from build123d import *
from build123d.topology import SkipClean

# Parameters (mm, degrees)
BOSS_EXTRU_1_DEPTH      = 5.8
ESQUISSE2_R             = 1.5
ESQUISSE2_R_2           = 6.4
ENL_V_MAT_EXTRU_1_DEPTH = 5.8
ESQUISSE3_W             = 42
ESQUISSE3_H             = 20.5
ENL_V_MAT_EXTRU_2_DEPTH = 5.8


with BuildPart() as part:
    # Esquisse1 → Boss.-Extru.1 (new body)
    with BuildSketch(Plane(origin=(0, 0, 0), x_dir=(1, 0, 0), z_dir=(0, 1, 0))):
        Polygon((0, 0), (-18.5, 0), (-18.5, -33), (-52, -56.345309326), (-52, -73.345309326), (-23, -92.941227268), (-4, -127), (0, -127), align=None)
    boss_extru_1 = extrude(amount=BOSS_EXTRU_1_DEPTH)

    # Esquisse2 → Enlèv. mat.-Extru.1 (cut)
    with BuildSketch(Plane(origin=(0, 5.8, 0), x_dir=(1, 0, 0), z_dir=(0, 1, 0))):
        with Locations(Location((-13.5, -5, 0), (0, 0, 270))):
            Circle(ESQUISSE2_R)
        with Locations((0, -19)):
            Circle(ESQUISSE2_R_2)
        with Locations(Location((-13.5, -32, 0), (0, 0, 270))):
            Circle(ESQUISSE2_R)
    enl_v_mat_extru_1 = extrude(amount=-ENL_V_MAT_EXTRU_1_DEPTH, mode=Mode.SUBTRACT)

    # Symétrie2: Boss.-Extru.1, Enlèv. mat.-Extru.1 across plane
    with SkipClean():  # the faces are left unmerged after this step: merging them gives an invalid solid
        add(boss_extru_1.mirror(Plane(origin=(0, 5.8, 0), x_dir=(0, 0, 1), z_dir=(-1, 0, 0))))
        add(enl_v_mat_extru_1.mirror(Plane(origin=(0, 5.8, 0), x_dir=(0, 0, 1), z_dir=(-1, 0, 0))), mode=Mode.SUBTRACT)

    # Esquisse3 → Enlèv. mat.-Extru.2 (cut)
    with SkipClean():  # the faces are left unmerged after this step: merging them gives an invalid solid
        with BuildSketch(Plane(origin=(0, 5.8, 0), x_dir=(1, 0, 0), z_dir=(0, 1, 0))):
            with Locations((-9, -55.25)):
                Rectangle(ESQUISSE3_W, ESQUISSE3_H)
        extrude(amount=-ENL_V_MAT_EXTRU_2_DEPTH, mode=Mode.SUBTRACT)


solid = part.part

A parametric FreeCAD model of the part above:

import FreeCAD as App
import Part
import Sketcher
from FreeCAD import Vector
Q = App.Units.Quantity


def add_polygon(sketch, points):
    """Adds a closed chain of lines whose ends are joined by coincident constraints."""
    first, n = sketch.GeometryCount, len(points)
    for a, b in zip(points, points[1:] + points[:1]):
        sketch.addGeometry(Part.LineSegment(App.Vector(*a, 0), App.Vector(*b, 0)), False)
    for i in range(n):
        sketch.addConstraint(Sketcher.Constraint("Coincident", first + i, 2, first + (i + 1) % n, 1))

doc = App.newDocument("Part")
body = doc.addObject("PartDesign::Body", "Body")

sketch1 = doc.addObject("Sketcher::SketchObject", "Sketch")
body.addObject(sketch1)
sketch1.AttachmentSupport = (doc.XZ_Plane, [""])
sketch1.MapMode = "FlatFace"
add_polygon(sketch1, [(0, 0), (-18.5, 0), (-18.5, 33), (-52, 56.3), (-52, 73.3), (-23, 92.9), (-4, 127), (0, 127)])
sketch1.addConstraint([
    Sketcher.Constraint("Horizontal", 0),
    Sketcher.Constraint("Vertical", 1),
    Sketcher.Constraint("Vertical", 3),
    Sketcher.Constraint("Horizontal", 6),
    Sketcher.Constraint("Vertical", 7),
    Sketcher.Constraint("Coincident", 7, 2, -1, 1),
    Sketcher.Constraint("DistanceX", 6, 1, 6, 2, Q("4 mm")),
    Sketcher.Constraint("DistanceY", 1, 1, 1, 2, Q("33 mm")),
    Sketcher.Constraint("DistanceY", 3, 1, 3, 2, Q("17 mm")),
    Sketcher.Constraint("DistanceY", 7, 2, 7, 1, Q("127 mm")),
    Sketcher.Constraint("Distance", 4, Q("35 mm")),
    Sketcher.Constraint("Distance", 5, Q("39 mm")),
    Sketcher.Constraint("DistanceX", 0, 2, 0, 1, Q("18.5 mm")),
    Sketcher.Constraint("DistanceX", 2, 2, -1, 1, Q("52 mm")),
    Sketcher.Constraint("DistanceX", 4, 2, -1, 1, Q("23 mm")),
])
pad1 = doc.addObject("PartDesign::Pad", "Pad")
body.addObject(pad1)
pad1.Profile = sketch1
pad1.Length = 5.8
pad1.Reversed = True

sketch2 = doc.addObject("Sketcher::SketchObject", "Sketch001")
body.addObject(sketch2)
sketch2.AttachmentSupport = (doc.XZ_Plane, [""])
sketch2.MapMode = "FlatFace"
sketch2.AttachmentOffset = App.Placement(Vector(0, 0, -5.8), App.Rotation())
sketch2.addGeometry([
    Part.Circle(Vector(-13.5, 5, 0), Vector(0, 0, 1), 1.5),
    Part.Circle(Vector(0, 19, 0), Vector(0, 0, 1), 6.4),
    Part.Circle(Vector(-13.5, 32, 0), Vector(0, 0, 1), 1.5),
], False)
sketch2.addConstraint([
    Sketcher.Constraint("Equal", 0, 2),
    Sketcher.Constraint("PointOnObject", 1, 3, -2),
    Sketcher.Constraint("Vertical", 0, 3, 2, 3),
    Sketcher.Constraint("Diameter", 0, Q("3 mm")),
    Sketcher.Constraint("Diameter", 1, Q("12.8 mm")),
    Sketcher.Constraint("DistanceY", -1, 1, 0, 3, Q("5 mm")),
    Sketcher.Constraint("DistanceY", -1, 1, 1, 3, Q("19 mm")),
    Sketcher.Constraint("DistanceY", -1, 1, 2, 3, Q("32 mm")),
    Sketcher.Constraint("DistanceX", 0, 3, -1, 1, Q("13.5 mm")),
])
pocket1 = doc.addObject("PartDesign::Pocket", "Pocket")
body.addObject(pocket1)
pocket1.Profile = sketch2
pocket1.Length = 5.8
pocket1.Reversed = True
doc.recompute()

mirrored = doc.addObject("PartDesign::Mirrored", "Mirrored")
body.addObject(mirrored)
mirrored.Originals = [pad1, pocket1]
mirrored.MirrorPlane = (doc.YZ_Plane, [""])
body.Tip = mirrored

sketch3 = doc.addObject("Sketcher::SketchObject", "Sketch002")
body.addObject(sketch3)
sketch3.AttachmentSupport = (doc.XZ_Plane, [""])
sketch3.MapMode = "FlatFace"
sketch3.AttachmentOffset = App.Placement(Vector(0, 0, -5.8), App.Rotation())
add_polygon(sketch3, [(-30, 45), (-30, 66), (12, 66), (12, 45)])
sketch3.addConstraint([
    Sketcher.Constraint("Vertical", 0),
    Sketcher.Constraint("Horizontal", 1),
    Sketcher.Constraint("Vertical", 2),
    Sketcher.Constraint("Horizontal", 3),
    Sketcher.Constraint("DistanceX", 1, 1, 1, 2, Q("42 mm")),
    Sketcher.Constraint("DistanceY", 0, 1, 0, 2, Q("20.5 mm")),
    Sketcher.Constraint("DistanceX", 0, 2, -1, 1, Q("30 mm")),
    Sketcher.Constraint("DistanceY", -1, 1, 2, 2, Q("45 mm")),
])
pocket2 = doc.addObject("PartDesign::Pocket", "Pocket001")
body.addObject(pocket2)
pocket2.Profile = sketch3
pocket2.Length = 5.8
pocket2.Reversed = True

doc.recompute()
